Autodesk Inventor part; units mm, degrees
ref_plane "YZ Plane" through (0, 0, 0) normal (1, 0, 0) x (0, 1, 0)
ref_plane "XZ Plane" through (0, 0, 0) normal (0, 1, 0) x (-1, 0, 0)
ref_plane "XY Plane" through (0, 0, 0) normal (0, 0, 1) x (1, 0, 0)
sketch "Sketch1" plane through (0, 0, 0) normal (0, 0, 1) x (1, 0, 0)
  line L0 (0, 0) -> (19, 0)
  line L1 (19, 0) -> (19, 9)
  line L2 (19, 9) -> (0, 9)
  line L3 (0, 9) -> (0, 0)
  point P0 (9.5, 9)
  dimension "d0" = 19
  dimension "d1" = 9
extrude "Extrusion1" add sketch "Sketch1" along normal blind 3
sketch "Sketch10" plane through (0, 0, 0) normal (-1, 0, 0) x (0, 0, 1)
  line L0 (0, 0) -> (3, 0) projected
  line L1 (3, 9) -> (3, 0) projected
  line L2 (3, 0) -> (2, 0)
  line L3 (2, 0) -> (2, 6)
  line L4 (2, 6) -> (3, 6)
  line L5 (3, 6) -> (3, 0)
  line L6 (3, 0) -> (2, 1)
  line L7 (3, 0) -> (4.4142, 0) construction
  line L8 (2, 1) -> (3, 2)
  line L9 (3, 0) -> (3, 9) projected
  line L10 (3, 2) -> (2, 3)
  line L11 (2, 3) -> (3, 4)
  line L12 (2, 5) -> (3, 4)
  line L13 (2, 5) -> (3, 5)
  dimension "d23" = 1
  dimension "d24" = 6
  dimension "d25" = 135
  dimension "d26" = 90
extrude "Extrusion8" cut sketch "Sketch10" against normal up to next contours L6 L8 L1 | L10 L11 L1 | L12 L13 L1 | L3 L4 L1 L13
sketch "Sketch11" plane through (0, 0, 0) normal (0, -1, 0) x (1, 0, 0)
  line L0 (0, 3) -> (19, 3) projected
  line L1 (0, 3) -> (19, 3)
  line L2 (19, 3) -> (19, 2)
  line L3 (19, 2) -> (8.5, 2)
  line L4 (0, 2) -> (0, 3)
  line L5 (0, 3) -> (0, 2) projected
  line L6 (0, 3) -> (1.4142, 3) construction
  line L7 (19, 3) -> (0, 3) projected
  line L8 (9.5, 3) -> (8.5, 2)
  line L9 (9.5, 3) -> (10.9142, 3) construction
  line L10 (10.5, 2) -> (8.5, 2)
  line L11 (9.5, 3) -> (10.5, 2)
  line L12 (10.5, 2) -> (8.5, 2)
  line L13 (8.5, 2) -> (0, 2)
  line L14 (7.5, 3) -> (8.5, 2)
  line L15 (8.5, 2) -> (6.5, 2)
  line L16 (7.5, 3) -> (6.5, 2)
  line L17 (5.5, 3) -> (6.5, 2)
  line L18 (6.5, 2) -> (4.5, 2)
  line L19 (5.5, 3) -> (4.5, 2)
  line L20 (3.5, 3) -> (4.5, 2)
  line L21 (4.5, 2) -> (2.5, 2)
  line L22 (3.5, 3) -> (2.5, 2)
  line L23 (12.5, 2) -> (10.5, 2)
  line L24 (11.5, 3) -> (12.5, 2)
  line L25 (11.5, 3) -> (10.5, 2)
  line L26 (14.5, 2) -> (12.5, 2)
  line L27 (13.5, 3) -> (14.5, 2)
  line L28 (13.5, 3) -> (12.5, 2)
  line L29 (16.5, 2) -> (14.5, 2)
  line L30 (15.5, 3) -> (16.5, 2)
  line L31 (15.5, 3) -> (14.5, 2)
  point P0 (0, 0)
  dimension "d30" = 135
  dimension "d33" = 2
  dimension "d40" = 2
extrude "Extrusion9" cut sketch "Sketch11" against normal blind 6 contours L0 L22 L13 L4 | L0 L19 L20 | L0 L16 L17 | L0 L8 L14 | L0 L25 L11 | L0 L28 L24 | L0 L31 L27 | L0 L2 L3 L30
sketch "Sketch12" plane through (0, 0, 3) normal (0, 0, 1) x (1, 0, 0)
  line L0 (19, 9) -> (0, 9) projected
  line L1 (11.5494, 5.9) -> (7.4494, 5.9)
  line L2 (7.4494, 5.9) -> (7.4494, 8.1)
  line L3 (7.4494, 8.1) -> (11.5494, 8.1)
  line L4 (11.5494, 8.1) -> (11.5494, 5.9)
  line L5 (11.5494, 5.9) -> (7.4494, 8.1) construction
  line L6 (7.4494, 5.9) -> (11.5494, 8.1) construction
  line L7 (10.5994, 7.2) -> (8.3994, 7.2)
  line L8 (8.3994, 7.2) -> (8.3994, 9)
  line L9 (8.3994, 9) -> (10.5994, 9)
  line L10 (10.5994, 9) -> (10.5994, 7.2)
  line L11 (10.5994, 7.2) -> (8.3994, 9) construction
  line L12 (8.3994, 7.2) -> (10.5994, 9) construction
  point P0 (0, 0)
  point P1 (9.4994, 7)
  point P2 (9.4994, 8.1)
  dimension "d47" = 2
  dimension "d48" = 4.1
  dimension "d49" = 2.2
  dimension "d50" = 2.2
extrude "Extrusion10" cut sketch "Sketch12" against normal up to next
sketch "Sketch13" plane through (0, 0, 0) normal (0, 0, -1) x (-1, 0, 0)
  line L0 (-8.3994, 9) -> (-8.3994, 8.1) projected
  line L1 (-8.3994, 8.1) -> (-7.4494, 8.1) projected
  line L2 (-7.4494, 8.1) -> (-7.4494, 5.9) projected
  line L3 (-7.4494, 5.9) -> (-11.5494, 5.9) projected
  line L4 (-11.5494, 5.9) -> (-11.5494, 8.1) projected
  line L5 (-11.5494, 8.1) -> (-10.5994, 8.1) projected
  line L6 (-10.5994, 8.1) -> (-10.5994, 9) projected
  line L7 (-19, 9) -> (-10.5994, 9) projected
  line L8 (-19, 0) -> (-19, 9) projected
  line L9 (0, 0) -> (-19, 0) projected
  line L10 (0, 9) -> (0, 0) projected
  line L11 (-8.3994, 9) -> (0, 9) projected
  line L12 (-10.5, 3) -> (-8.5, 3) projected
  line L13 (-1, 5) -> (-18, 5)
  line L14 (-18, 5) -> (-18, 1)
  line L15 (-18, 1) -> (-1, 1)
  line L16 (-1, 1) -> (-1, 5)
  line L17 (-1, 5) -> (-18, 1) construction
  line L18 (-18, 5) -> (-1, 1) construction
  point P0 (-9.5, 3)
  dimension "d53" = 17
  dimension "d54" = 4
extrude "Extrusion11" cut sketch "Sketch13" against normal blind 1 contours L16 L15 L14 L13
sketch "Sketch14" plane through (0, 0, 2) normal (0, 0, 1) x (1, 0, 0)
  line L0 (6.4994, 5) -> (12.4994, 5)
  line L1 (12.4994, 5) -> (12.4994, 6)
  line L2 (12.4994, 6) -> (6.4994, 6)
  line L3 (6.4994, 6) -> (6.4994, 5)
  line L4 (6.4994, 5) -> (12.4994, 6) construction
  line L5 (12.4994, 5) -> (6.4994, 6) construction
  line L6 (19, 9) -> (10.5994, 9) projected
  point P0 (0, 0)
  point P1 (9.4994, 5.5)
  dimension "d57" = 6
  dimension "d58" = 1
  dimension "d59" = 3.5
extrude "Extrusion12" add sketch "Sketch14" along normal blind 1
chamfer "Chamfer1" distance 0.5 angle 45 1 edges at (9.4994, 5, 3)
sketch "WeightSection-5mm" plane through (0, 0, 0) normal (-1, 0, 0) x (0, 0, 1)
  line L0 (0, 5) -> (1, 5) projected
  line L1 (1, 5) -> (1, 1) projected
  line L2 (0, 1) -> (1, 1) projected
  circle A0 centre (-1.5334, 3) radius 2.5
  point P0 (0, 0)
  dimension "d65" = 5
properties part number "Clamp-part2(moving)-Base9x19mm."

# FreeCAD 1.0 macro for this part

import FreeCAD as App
import Part
import Sketcher


def edges_at(feature, points):
    """Names of the edges that pass closest to the given points."""
    edges = feature.Shape.Edges
    near = lambda p: min(range(len(edges)), key=lambda i: edges[i].distToShape(Part.Vertex(*p))[0])
    return sorted({f"Edge{near(p) + 1}" for p in points})

doc = App.newDocument("Part")
body = doc.addObject("PartDesign::Body", "Body")

sketch1 = doc.addObject("Sketcher::SketchObject", "Sketch")
body.addObject(sketch1)
sketch1.AttachmentSupport = (doc.XY_Plane, [""])
sketch1.MapMode = "FlatFace"
sketch1.addGeometry([
    Part.LineSegment(App.Vector(0, 9, 0), App.Vector(0, 0, 0)),
    Part.LineSegment(App.Vector(0, 0, 0), App.Vector(19, 0, 0)),
    Part.LineSegment(App.Vector(19, 0, 0), App.Vector(19, 9, 0)),
    Part.LineSegment(App.Vector(19, 9, 0), App.Vector(0, 9, 0)),
], False)
sketch1.addConstraint([
    Sketcher.Constraint("Coincident", 0, 2, 1, 1),
    Sketcher.Constraint("Coincident", 1, 2, 2, 1),
    Sketcher.Constraint("Coincident", 2, 2, 3, 1),
    Sketcher.Constraint("Coincident", 3, 2, 0, 1),
    Sketcher.Constraint("Vertical", 0),
    Sketcher.Constraint("Horizontal", 1),
    Sketcher.Constraint("Vertical", 2),
    Sketcher.Constraint("Horizontal", 3),
    Sketcher.Constraint("Coincident", 0, 2, -1, 1),
    Sketcher.Constraint("DistanceX", 1, 1, 1, 2, 19.0),
    Sketcher.Constraint("DistanceY", 0, 2, 0, 1, 9.0),
])
pad1 = doc.addObject("PartDesign::Pad", "Pad")
body.addObject(pad1)
pad1.Profile = sketch1
pad1.Length = 3

sketch2 = doc.addObject("Sketcher::SketchObject", "Sketch001")
body.addObject(sketch2)
sketch2.AttachmentSupport = (doc.YZ_Plane, [""])
sketch2.MapMode = "FlatFace"
sketch2.addGeometry([
    Part.LineSegment(App.Vector(1, 2, 0), App.Vector(0, 3, 0)),
    Part.LineSegment(App.Vector(0, 3, 0), App.Vector(2, 3, 0)),
    Part.LineSegment(App.Vector(2, 3, 0), App.Vector(1, 2, 0)),
    Part.LineSegment(App.Vector(3, 2, 0), App.Vector(2, 3, 0)),
    Part.LineSegment(App.Vector(2, 3, 0), App.Vector(4, 3, 0)),
    Part.LineSegment(App.Vector(4, 3, 0), App.Vector(3, 2, 0)),
    Part.LineSegment(App.Vector(5, 2, 0), App.Vector(4, 3, 0)),
    Part.LineSegment(App.Vector(4, 3, 0), App.Vector(6, 3, 0)),
    Part.LineSegment(App.Vector(6, 3, 0), App.Vector(6, 2, 0)),
    Part.LineSegment(App.Vector(6, 2, 0), App.Vector(5, 2, 0)),
], False)
sketch2.addConstraint([
    Sketcher.Constraint("Coincident", 0, 2, 1, 1),
    Sketcher.Constraint("Coincident", 1, 2, 2, 1),
    Sketcher.Constraint("Coincident", 2, 2, 0, 1),
    Sketcher.Constraint("Coincident", 3, 2, 4, 1),
    Sketcher.Constraint("Coincident", 4, 2, 5, 1),
    Sketcher.Constraint("Coincident", 5, 2, 3, 1),
    Sketcher.Constraint("Coincident", 6, 2, 7, 1),
    Sketcher.Constraint("Coincident", 7, 2, 8, 1),
    Sketcher.Constraint("Coincident", 8, 2, 9, 1),
    Sketcher.Constraint("Coincident", 9, 2, 6, 1),
    Sketcher.Constraint("Horizontal", 1),
    Sketcher.Constraint("Horizontal", 4),
    Sketcher.Constraint("Horizontal", 7),
    Sketcher.Constraint("Vertical", 8),
    Sketcher.Constraint("Horizontal", 9),
    Sketcher.Constraint("Coincident", 3, 2, 1, 2),
    Sketcher.Constraint("Coincident", 6, 2, 4, 2),
    Sketcher.Constraint("PointOnObject", 0, 2, -2),
    Sketcher.Constraint("Perpendicular", 0, 2),
    Sketcher.Constraint("Perpendicular", 2, 3),
    Sketcher.Constraint("Perpendicular", 3, 5),
    Sketcher.Constraint("Perpendicular", 5, 6),
    Sketcher.Constraint("Horizontal", 2, 2, 5, 2),
    Sketcher.Constraint("Horizontal", 5, 2, 8, 2),
    Sketcher.Constraint("Equal", 4, 7),
    Sketcher.Constraint("Equal", 9, 8),
    Sketcher.Constraint("DistanceX", 9, 2, 9, 1, 1.0),
    Sketcher.Constraint("DistanceY", -1, 1, 0, 2, 3.0),
])
pocket1 = doc.addObject("PartDesign::Pocket", "Pocket")
body.addObject(pocket1)
pocket1.Profile = sketch2
pocket1.Type = "UpToFirst"
pocket1.Reversed = True

sketch3 = doc.addObject("Sketcher::SketchObject", "Sketch002")
body.addObject(sketch3)
sketch3.AttachmentSupport = (doc.XZ_Plane, [""])
sketch3.MapMode = "FlatFace"
sketch3.addGeometry([
    Part.LineSegment(App.Vector(3.5, 3, 0), App.Vector(0, 3, 0)),
    Part.LineSegment(App.Vector(0, 3, 0), App.Vector(0, 2, 0)),
    Part.LineSegment(App.Vector(0, 2, 0), App.Vector(2.5, 2, 0)),
    Part.LineSegment(App.Vector(2.5, 2, 0), App.Vector(3.5, 3, 0)),
    Part.LineSegment(App.Vector(5.5, 3, 0), App.Vector(3.5, 3, 0)),
    Part.LineSegment(App.Vector(3.5, 3, 0), App.Vector(4.5, 2, 0)),
    Part.LineSegment(App.Vector(4.5, 2, 0), App.Vector(5.5, 3, 0)),
    Part.LineSegment(App.Vector(7.5, 3, 0), App.Vector(5.5, 3, 0)),
    Part.LineSegment(App.Vector(5.5, 3, 0), App.Vector(6.5, 2, 0)),
    Part.LineSegment(App.Vector(6.5, 2, 0), App.Vector(7.5, 3, 0)),
    Part.LineSegment(App.Vector(9.5, 3, 0), App.Vector(7.5, 3, 0)),
    Part.LineSegment(App.Vector(7.5, 3, 0), App.Vector(8.5, 2, 0)),
    Part.LineSegment(App.Vector(8.5, 2, 0), App.Vector(9.5, 3, 0)),
    Part.LineSegment(App.Vector(11.5, 3, 0), App.Vector(9.5, 3, 0)),
    Part.LineSegment(App.Vector(9.5, 3, 0), App.Vector(10.5, 2, 0)),
    Part.LineSegment(App.Vector(10.5, 2, 0), App.Vector(11.5, 3, 0)),
    Part.LineSegment(App.Vector(13.5, 3, 0), App.Vector(11.5, 3, 0)),
    Part.LineSegment(App.Vector(11.5, 3, 0), App.Vector(12.5, 2, 0)),
    Part.LineSegment(App.Vector(12.5, 2, 0), App.Vector(13.5, 3, 0)),
    Part.LineSegment(App.Vector(15.5, 3, 0), App.Vector(13.5, 3, 0)),
    Part.LineSegment(App.Vector(13.5, 3, 0), App.Vector(14.5, 2, 0)),
    Part.LineSegment(App.Vector(14.5, 2, 0), App.Vector(15.5, 3, 0)),
    Part.LineSegment(App.Vector(19, 3, 0), App.Vector(15.5, 3, 0)),
    Part.LineSegment(App.Vector(15.5, 3, 0), App.Vector(16.5, 2, 0)),
    Part.LineSegment(App.Vector(16.5, 2, 0), App.Vector(19, 2, 0)),
    Part.LineSegment(App.Vector(19, 2, 0), App.Vector(19, 3, 0)),
], False)
sketch3.addConstraint([
    Sketcher.Constraint("Coincident", 0, 2, 1, 1),
    Sketcher.Constraint("Coincident", 1, 2, 2, 1),
    Sketcher.Constraint("Coincident", 2, 2, 3, 1),
    Sketcher.Constraint("Coincident", 3, 2, 0, 1),
    Sketcher.Constraint("Coincident", 4, 2, 5, 1),
    Sketcher.Constraint("Coincident", 5, 2, 6, 1),
    Sketcher.Constraint("Coincident", 6, 2, 4, 1),
    Sketcher.Constraint("Coincident", 7, 2, 8, 1),
    Sketcher.Constraint("Coincident", 8, 2, 9, 1),
    Sketcher.Constraint("Coincident", 9, 2, 7, 1),
    Sketcher.Constraint("Coincident", 10, 2, 11, 1),
    Sketcher.Constraint("Coincident", 11, 2, 12, 1),
    Sketcher.Constraint("Coincident", 12, 2, 10, 1),
    Sketcher.Constraint("Coincident", 13, 2, 14, 1),
    Sketcher.Constraint("Coincident", 14, 2, 15, 1),
    Sketcher.Constraint("Coincident", 15, 2, 13, 1),
    Sketcher.Constraint("Coincident", 16, 2, 17, 1),
    Sketcher.Constraint("Coincident", 17, 2, 18, 1),
    Sketcher.Constraint("Coincident", 18, 2, 16, 1),
    Sketcher.Constraint("Coincident", 19, 2, 20, 1),
    Sketcher.Constraint("Coincident", 20, 2, 21, 1),
    Sketcher.Constraint("Coincident", 21, 2, 19, 1),
    Sketcher.Constraint("Coincident", 22, 2, 23, 1),
    Sketcher.Constraint("Coincident", 23, 2, 24, 1),
    Sketcher.Constraint("Coincident", 24, 2, 25, 1),
    Sketcher.Constraint("Coincident", 25, 2, 22, 1),
    Sketcher.Constraint("Horizontal", 0),
    Sketcher.Constraint("Vertical", 1),
    Sketcher.Constraint("Horizontal", 2),
    Sketcher.Constraint("Horizontal", 4),
    Sketcher.Constraint("Horizontal", 7),
    Sketcher.Constraint("Horizontal", 10),
    Sketcher.Constraint("Horizontal", 13),
    Sketcher.Constraint("Horizontal", 16),
    Sketcher.Constraint("Horizontal", 19),
    Sketcher.Constraint("Horizontal", 22),
    Sketcher.Constraint("Horizontal", 24),
    Sketcher.Constraint("Vertical", 25),
    Sketcher.Constraint("Coincident", 4, 2, 3, 2),
    Sketcher.Constraint("Coincident", 7, 2, 6, 2),
    Sketcher.Constraint("Coincident", 10, 2, 9, 2),
    Sketcher.Constraint("Coincident", 13, 2, 12, 2),
    Sketcher.Constraint("Coincident", 16, 2, 15, 2),
    Sketcher.Constraint("Coincident", 19, 2, 18, 2),
    Sketcher.Constraint("Coincident", 22, 2, 21, 2),
    Sketcher.Constraint("PointOnObject", 0, 2, -2),
    Sketcher.Constraint("Perpendicular", 3, 5),
    Sketcher.Constraint("Perpendicular", 5, 6),
    Sketcher.Constraint("Perpendicular", 6, 8),
    Sketcher.Constraint("Perpendicular", 8, 9),
    Sketcher.Constraint("Perpendicular", 9, 11),
    Sketcher.Constraint("Perpendicular", 11, 12),
    Sketcher.Constraint("Perpendicular", 12, 14),
    Sketcher.Constraint("Perpendicular", 14, 15),
    Sketcher.Constraint("Perpendicular", 15, 17),
    Sketcher.Constraint("Perpendicular", 17, 18),
    Sketcher.Constraint("Perpendicular", 18, 20),
    Sketcher.Constraint("Perpendicular", 20, 21),
    Sketcher.Constraint("Perpendicular", 21, 23),
    Sketcher.Constraint("Horizontal", 2, 2, 5, 2),
    Sketcher.Constraint("Horizontal", 5, 2, 8, 2),
    Sketcher.Constraint("Horizontal", 8, 2, 11, 2),
    Sketcher.Constraint("Horizontal", 11, 2, 14, 2),
    Sketcher.Constraint("Horizontal", 14, 2, 17, 2),
    Sketcher.Constraint("Horizontal", 17, 2, 20, 2),
    Sketcher.Constraint("Horizontal", 20, 2, 23, 2),
    Sketcher.Constraint("Equal", 0, 22),
    Sketcher.Constraint("Equal", 2, 24),
    Sketcher.Constraint("DistanceX", 4, 2, 4, 1, 2.0),
    Sketcher.Constraint("DistanceY", -1, 1, 1, 2, 2.0),
    Sketcher.Constraint("DistanceX", 0, 2, 0, 1, 3.5),
])
pocket2 = doc.addObject("PartDesign::Pocket", "Pocket001")
body.addObject(pocket2)
pocket2.Profile = sketch3
pocket2.Length = 6

sketch4 = doc.addObject("Sketcher::SketchObject", "Sketch003")
body.addObject(sketch4)
sketch4.AttachmentSupport = (doc.XY_Plane, [""])
sketch4.MapMode = "FlatFace"
sketch4.AttachmentOffset = App.Placement(App.Vector(0, 0, 3), App.Rotation())
sketch4.addGeometry([
    Part.LineSegment(App.Vector(10.5994, 8.1, 0), App.Vector(10.5994, 9, 0)),
    Part.LineSegment(App.Vector(10.5994, 9, 0), App.Vector(8.3994, 9, 0)),
    Part.LineSegment(App.Vector(8.3994, 9, 0), App.Vector(8.3994, 8.1, 0)),
    Part.LineSegment(App.Vector(8.3994, 8.1, 0), App.Vector(7.4494, 8.1, 0)),
    Part.LineSegment(App.Vector(7.4494, 8.1, 0), App.Vector(7.4494, 5.9, 0)),
    Part.LineSegment(App.Vector(7.4494, 5.9, 0), App.Vector(11.5494, 5.9, 0)),
    Part.LineSegment(App.Vector(11.5494, 5.9, 0), App.Vector(11.5494, 8.1, 0)),
    Part.LineSegment(App.Vector(11.5494, 8.1, 0), App.Vector(10.5994, 8.1, 0)),
], False)
sketch4.addConstraint([
    Sketcher.Constraint("Coincident", 0, 2, 1, 1),
    Sketcher.Constraint("Coincident", 1, 2, 2, 1),
    Sketcher.Constraint("Coincident", 2, 2, 3, 1),
    Sketcher.Constraint("Coincident", 3, 2, 4, 1),
    Sketcher.Constraint("Coincident", 4, 2, 5, 1),
    Sketcher.Constraint("Coincident", 5, 2, 6, 1),
    Sketcher.Constraint("Coincident", 6, 2, 7, 1),
    Sketcher.Constraint("Coincident", 7, 2, 0, 1),
    Sketcher.Constraint("Vertical", 0),
    Sketcher.Constraint("Horizontal", 1),
    Sketcher.Constraint("Vertical", 2),
    Sketcher.Constraint("Horizontal", 3),
    Sketcher.Constraint("Vertical", 4),
    Sketcher.Constraint("Horizontal", 5),
    Sketcher.Constraint("Vertical", 6),
    Sketcher.Constraint("Horizontal", 7),
    Sketcher.Constraint("Horizontal", 3, 2, 6, 2),
    Sketcher.Constraint("Equal", 3, 7),
    Sketcher.Constraint("Equal", 1, 4),
    Sketcher.Constraint("DistanceX", 1, 2, 1, 1, 2.2),
    Sketcher.Constraint("DistanceX", 5, 1, 5, 2, 4.1),
    Sketcher.Constraint("DistanceY", 0, 1, 0, 2, 0.9),
    Sketcher.Constraint("DistanceY", -1, 1, 0, 2, 9.0),
    Sketcher.Constraint("DistanceX", -1, 1, 0, 2, 10.5994),
])
pocket3 = doc.addObject("PartDesign::Pocket", "Pocket002")
body.addObject(pocket3)
pocket3.Profile = sketch4
pocket3.Type = "UpToFirst"

sketch5 = doc.addObject("Sketcher::SketchObject", "Sketch004")
body.addObject(sketch5)
sketch5.AttachmentSupport = (doc.XY_Plane, [""])
sketch5.MapMode = "FlatFace"
sketch5.addGeometry([
    Part.LineSegment(App.Vector(1, 1, 0), App.Vector(1, 5, 0)),
    Part.LineSegment(App.Vector(1, 5, 0), App.Vector(18, 5, 0)),
    Part.LineSegment(App.Vector(18, 5, 0), App.Vector(18, 1, 0)),
    Part.LineSegment(App.Vector(18, 1, 0), App.Vector(1, 1, 0)),
], False)
sketch5.addConstraint([
    Sketcher.Constraint("Coincident", 0, 2, 1, 1),
    Sketcher.Constraint("Coincident", 1, 2, 2, 1),
    Sketcher.Constraint("Coincident", 2, 2, 3, 1),
    Sketcher.Constraint("Coincident", 3, 2, 0, 1),
    Sketcher.Constraint("Vertical", 0),
    Sketcher.Constraint("Horizontal", 1),
    Sketcher.Constraint("Vertical", 2),
    Sketcher.Constraint("Horizontal", 3),
    Sketcher.Constraint("DistanceX", 1, 1, 1, 2, 17.0),
    Sketcher.Constraint("DistanceY", 0, 1, 0, 2, 4.0),
    Sketcher.Constraint("DistanceX", -1, 1, 0, 2, 1.0),
    Sketcher.Constraint("DistanceY", -1, 1, 0, 2, 5.0),
])
pocket4 = doc.addObject("PartDesign::Pocket", "Pocket003")
body.addObject(pocket4)
pocket4.Profile = sketch5
pocket4.Length = 1
pocket4.Reversed = True

sketch6 = doc.addObject("Sketcher::SketchObject", "Sketch005")
body.addObject(sketch6)
sketch6.AttachmentSupport = (doc.XY_Plane, [""])
sketch6.MapMode = "FlatFace"
sketch6.AttachmentOffset = App.Placement(App.Vector(0, 0, 2), App.Rotation())
sketch6.addGeometry([
    Part.LineSegment(App.Vector(6.4994, 6, 0), App.Vector(6.4994, 5, 0)),
    Part.LineSegment(App.Vector(6.4994, 5, 0), App.Vector(12.4994, 5, 0)),
    Part.LineSegment(App.Vector(12.4994, 5, 0), App.Vector(12.4994, 6, 0)),
    Part.LineSegment(App.Vector(12.4994, 6, 0), App.Vector(6.4994, 6, 0)),
], False)
sketch6.addConstraint([
    Sketcher.Constraint("Coincident", 0, 2, 1, 1),
    Sketcher.Constraint("Coincident", 1, 2, 2, 1),
    Sketcher.Constraint("Coincident", 2, 2, 3, 1),
    Sketcher.Constraint("Coincident", 3, 2, 0, 1),
    Sketcher.Constraint("Vertical", 0),
    Sketcher.Constraint("Horizontal", 1),
    Sketcher.Constraint("Vertical", 2),
    Sketcher.Constraint("Horizontal", 3),
    Sketcher.Constraint("DistanceX", 1, 1, 1, 2, 6.0),
    Sketcher.Constraint("DistanceY", 0, 2, 0, 1, 1.0),
    Sketcher.Constraint("DistanceY", -1, 1, 2, 2, 6.0),
    Sketcher.Constraint("DistanceX", -1, 1, 0, 2, 6.4994),
])
pad2 = doc.addObject("PartDesign::Pad", "Pad001")
body.addObject(pad2)
pad2.Profile = sketch6
pad2.Length = 1
doc.recompute()

chamfer = doc.addObject("PartDesign::Chamfer", "Chamfer")
body.addObject(chamfer)
chamfer.Base = (pad2, edges_at(pad2, [(9.499, 5, 3)]))
chamfer.Size = 0.5

doc.recompute()
